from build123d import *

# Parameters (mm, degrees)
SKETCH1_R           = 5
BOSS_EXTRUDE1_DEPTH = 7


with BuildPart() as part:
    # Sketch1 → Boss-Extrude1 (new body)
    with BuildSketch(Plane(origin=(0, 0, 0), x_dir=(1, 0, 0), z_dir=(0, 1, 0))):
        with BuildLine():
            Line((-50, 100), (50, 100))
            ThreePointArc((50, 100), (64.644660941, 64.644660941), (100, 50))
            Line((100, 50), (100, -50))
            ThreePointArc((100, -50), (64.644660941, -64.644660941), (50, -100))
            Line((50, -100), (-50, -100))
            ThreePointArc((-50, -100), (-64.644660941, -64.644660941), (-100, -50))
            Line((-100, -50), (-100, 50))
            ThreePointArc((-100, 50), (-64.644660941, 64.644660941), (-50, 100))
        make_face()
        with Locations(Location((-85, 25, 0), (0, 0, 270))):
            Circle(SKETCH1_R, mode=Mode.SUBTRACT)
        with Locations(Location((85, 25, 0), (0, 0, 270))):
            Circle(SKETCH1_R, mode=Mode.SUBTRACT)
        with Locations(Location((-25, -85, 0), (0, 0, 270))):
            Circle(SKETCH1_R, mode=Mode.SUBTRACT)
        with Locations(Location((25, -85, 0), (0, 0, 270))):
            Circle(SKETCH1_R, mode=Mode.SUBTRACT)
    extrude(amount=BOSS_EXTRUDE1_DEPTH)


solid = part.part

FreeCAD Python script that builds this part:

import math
import FreeCAD as App
import Part
import Sketcher
from FreeCAD import Vector
Q = App.Units.Quantity

doc = App.newDocument("Part")
params = doc.addObject("Spreadsheet::Sheet", "Params")
for row, (alias, value) in enumerate([
    ("sketch1_diameter", "10 mm"),
    ("sketch1_radius", "50 mm"),
    ("sketch1_width", "100 mm"),
    ("pad1_length", "7 mm"),
], start=1):
    params.set(f"A{row}", alias)
    params.set(f"B{row}", "=" + value)
    params.setAlias(f"B{row}", alias)

body = doc.addObject("PartDesign::Body", "Body")

# Sketch on XZ plane
sketch1 = body.newObject("Sketcher::SketchObject", "Sketch")
sketch1.AttachmentSupport = (doc.getObject("XZ_Plane"), [""])
sketch1.MapMode = "FlatFace"
sketch1.addGeometry(Part.LineSegment(Vector(50, -100, 0), Vector(-50, -100, 0)), False)
sketch1.addGeometry(Part.ArcOfCircle(Part.Circle(Vector(-100, -100, 0), Vector(0, 0, 1), 50), math.radians(0), math.radians(90)), False)
sketch1.addGeometry(Part.LineSegment(Vector(-100, -50, 0), Vector(-100, 50, 0)), False)
sketch1.addGeometry(Part.ArcOfCircle(Part.Circle(Vector(-100, 100, 0), Vector(0, 0, 1), 50), math.radians(-90), math.radians(0)), False)
sketch1.addGeometry(Part.LineSegment(Vector(-50, 100, 0), Vector(50, 100, 0)), False)
sketch1.addGeometry(Part.ArcOfCircle(Part.Circle(Vector(100, 100, 0), Vector(0, 0, 1), 50), math.radians(-180), math.radians(-90)), False)
sketch1.addGeometry(Part.LineSegment(Vector(100, 50, 0), Vector(100, -50, 0)), False)
sketch1.addGeometry(Part.ArcOfCircle(Part.Circle(Vector(100, -100, 0), Vector(0, 0, 1), 50), math.radians(90), math.radians(180)), False)
sketch1.addGeometry(Part.Circle(Vector(25, 85, 0), Vector(0, 0, 1), 5), False)
sketch1.addGeometry(Part.Circle(Vector(-25, 85, 0), Vector(0, 0, 1), 5), False)
sketch1.addGeometry(Part.Circle(Vector(85, -25, 0), Vector(0, 0, 1), 5), False)
sketch1.addGeometry(Part.Circle(Vector(-85, -25, 0), Vector(0, 0, 1), 5), False)
sketch1.addConstraint(Sketcher.Constraint("Coincident", 0, 2, 1, 1))
sketch1.addConstraint(Sketcher.Constraint("Coincident", 1, 2, 2, 1))
sketch1.addConstraint(Sketcher.Constraint("Coincident", 2, 2, 3, 1))
sketch1.addConstraint(Sketcher.Constraint("Coincident", 3, 2, 4, 1))
sketch1.addConstraint(Sketcher.Constraint("Coincident", 4, 2, 5, 1))
sketch1.addConstraint(Sketcher.Constraint("Coincident", 5, 2, 6, 1))
sketch1.addConstraint(Sketcher.Constraint("Coincident", 6, 2, 7, 1))
sketch1.addConstraint(Sketcher.Constraint("Coincident", 7, 2, 0, 1))
sketch1.addConstraint(Sketcher.Constraint("Horizontal", 0))
sketch1.addConstraint(Sketcher.Constraint("Vertical", 2))
sketch1.addConstraint(Sketcher.Constraint("Horizontal", 4))
sketch1.addConstraint(Sketcher.Constraint("Vertical", 6))
sketch1.addConstraint(Sketcher.Constraint("Equal", 1, 3))
sketch1.addConstraint(Sketcher.Constraint("Equal", 3, 5))
sketch1.addConstraint(Sketcher.Constraint("Equal", 5, 7))
sketch1.addConstraint(Sketcher.Constraint("Equal", 8, 9))
sketch1.addConstraint(Sketcher.Constraint("Equal", 9, 10))
sketch1.addConstraint(Sketcher.Constraint("Equal", 10, 11))
sketch1.addConstraint(Sketcher.Constraint("Symmetric", 1, 3, 5, 3, -1, 1))
sketch1.addConstraint(Sketcher.Constraint("Symmetric", 3, 3, 7, 3, -1, 1))
sketch1.addConstraint(Sketcher.Constraint("Symmetric", 3, 3, 5, 3, -2))
sketch1.addConstraint(Sketcher.Constraint("Symmetric", 8, 3, 9, 3, -2))
sketch1.addConstraint(Sketcher.Constraint("Symmetric", 10, 3, 11, 3, -2))
sketch1.addConstraint(Sketcher.Constraint("Horizontal", 7, 3, 0, 2))
sketch1.addConstraint(Sketcher.Constraint("Horizontal", 5, 3, 3, 2))
sketch1.addConstraint(Sketcher.Constraint("Vertical", 3, 3, 1, 2))
sketch1.addConstraint(Sketcher.Constraint("Vertical", 7, 3, 5, 2))
sketch1.addConstraint(Sketcher.Constraint("Equal", 4, 2))
sketch1.addConstraint(Sketcher.Constraint("Diameter", 8, Q("10 mm")))
sketch1.addConstraint(Sketcher.Constraint("Radius", 1, Q("50 mm")))
sketch1.addConstraint(Sketcher.Constraint("DistanceX", 0, 2, 0, 1, Q("100 mm")))
sketch1.addConstraint(Sketcher.Constraint("DistanceX", -1, 1, 8, 3, Q("25 mm")))
sketch1.addConstraint(Sketcher.Constraint("DistanceY", -1, 1, 8, 3, Q("85 mm")))
sketch1.addConstraint(Sketcher.Constraint("DistanceX", -1, 1, 10, 3, Q("85 mm")))
sketch1.addConstraint(Sketcher.Constraint("DistanceY", 10, 3, -1, 1, Q("25 mm")))
sketch1.setExpression("Constraints[28]", "Params.sketch1_diameter")
sketch1.setExpression("Constraints[29]", "Params.sketch1_radius")
sketch1.setExpression("Constraints[30]", "Params.sketch1_width")
pad1 = body.newObject("PartDesign::Pad", "Pad")
pad1.Profile = sketch1
pad1.setExpression("Length", "Params.pad1_length")
pad1.Reversed = True

doc.recompute()
